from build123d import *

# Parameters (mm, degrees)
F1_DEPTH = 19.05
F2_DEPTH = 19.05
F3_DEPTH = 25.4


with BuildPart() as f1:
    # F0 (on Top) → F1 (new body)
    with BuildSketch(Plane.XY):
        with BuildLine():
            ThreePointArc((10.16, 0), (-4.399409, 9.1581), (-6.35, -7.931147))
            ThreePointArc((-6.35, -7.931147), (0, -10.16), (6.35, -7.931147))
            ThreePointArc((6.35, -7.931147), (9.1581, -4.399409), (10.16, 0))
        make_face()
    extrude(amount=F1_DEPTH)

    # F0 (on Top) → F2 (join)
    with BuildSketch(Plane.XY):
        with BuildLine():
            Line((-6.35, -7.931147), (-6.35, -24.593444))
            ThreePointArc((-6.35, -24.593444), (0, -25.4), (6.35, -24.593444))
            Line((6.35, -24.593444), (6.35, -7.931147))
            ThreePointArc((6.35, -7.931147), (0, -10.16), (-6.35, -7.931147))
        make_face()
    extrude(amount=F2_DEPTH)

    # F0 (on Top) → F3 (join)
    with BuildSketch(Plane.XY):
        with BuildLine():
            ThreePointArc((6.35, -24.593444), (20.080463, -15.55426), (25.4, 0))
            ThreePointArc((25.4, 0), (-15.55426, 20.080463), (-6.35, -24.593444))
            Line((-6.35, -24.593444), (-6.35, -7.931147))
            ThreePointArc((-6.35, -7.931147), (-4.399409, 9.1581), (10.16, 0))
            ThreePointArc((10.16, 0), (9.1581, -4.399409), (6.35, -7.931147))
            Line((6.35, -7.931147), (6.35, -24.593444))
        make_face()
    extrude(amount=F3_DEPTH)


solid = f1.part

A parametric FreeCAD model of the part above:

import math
import FreeCAD as App
import Part
import Sketcher

V = App.Vector
Q = App.Units.Quantity

doc = App.newDocument("Part")
params = doc.addObject("Spreadsheet::Sheet", "Params")
for row, (alias, value) in enumerate([
    ("sketch1_radius", "0.4 in"),
    ("pad1_length", "0.75 in"),
    ("sketch2_radius", "0.3999999 in"),
    ("pad2_length", "0.75 in"),
    ("sketch3_radius", "1 in"),
    ("sketch3_radius2", "0.4 in"),
    ("pad3_length", "1 in"),
], start=1):
    params.set(f"A{row}", alias)
    params.set(f"B{row}", "=" + value)
    params.setAlias(f"B{row}", alias)

body = doc.addObject("PartDesign::Body", "Body")

sketch1 = doc.addObject("Sketcher::SketchObject", "Sketch")
body.addObject(sketch1)
sketch1.AttachmentSupport = (doc.XY_Plane, [""])
sketch1.MapMode = "FlatFace"
sketch1.addGeometry(Part.ArcOfCircle(Part.Circle(V(0, 0, 0), V(0, 0, 1), 10.16), math.radians(0), math.radians(231.31781)), False)
sketch1.addGeometry(Part.ArcOfCircle(Part.Circle(V(0, -0.000002, 0), V(0, 0, 1), 10.159998), math.radians(-128.682195), math.radians(-51.317805)), False)
sketch1.addGeometry(Part.ArcOfCircle(Part.Circle(V(0, 0.000001, 0), V(0, 0, 1), 10.16), math.radians(-51.317812), math.radians(-0.000004)), False)
sketch1.addConstraint(Sketcher.Constraint("Tangent", 0, 2, 1, 1))
sketch1.addConstraint(Sketcher.Constraint("Tangent", 1, 2, 2, 1))
sketch1.addConstraint(Sketcher.Constraint("Tangent", 2, 2, 0, 1))
sketch1.addConstraint(Sketcher.Constraint("Coincident", 0, 3, -1, 1))
sketch1.addConstraint(Sketcher.Constraint("PointOnObject", 2, 2, -1))
sketch1.addConstraint(Sketcher.Constraint("Horizontal", 0, 2, 1, 2))
sketch1.addConstraint(Sketcher.Constraint("Radius", 0, Q("0.4 in")))
sketch1.addConstraint(Sketcher.Constraint("DistanceX", 0, 2, 1, 2, Q("0.5 in")))
sketch1.setExpression("Constraints[6]", "Params.sketch1_radius")
pad1 = doc.addObject("PartDesign::Pad", "Pad")
body.addObject(pad1)
pad1.Profile = sketch1
pad1.setExpression("Length", "Params.pad1_length")

sketch2 = doc.addObject("Sketcher::SketchObject", "Sketch001")
body.addObject(sketch2)
sketch2.AttachmentSupport = (doc.XY_Plane, [""])
sketch2.MapMode = "FlatFace"
sketch2.addGeometry(Part.LineSegment(V(-6.35, -7.931147, 0), V(-6.35, -24.593444, 0)), False)
sketch2.addGeometry(Part.ArcOfCircle(Part.Circle(V(0, -0.000008, 0), V(0, 0, 1), 25.399992), math.radians(-104.477517), math.radians(-75.522483)), False)
sketch2.addGeometry(Part.LineSegment(V(6.35, -24.593444, 0), V(6.35, -7.931147, 0)), False)
sketch2.addGeometry(Part.ArcOfCircle(Part.Circle(V(0, -0.000002, 0), V(0, 0, 1), 10.159998), math.radians(-128.682195), math.radians(-51.317805)), False)
sketch2.addConstraint(Sketcher.Constraint("Coincident", 0, 2, 1, 1))
sketch2.addConstraint(Sketcher.Constraint("Coincident", 1, 2, 2, 1))
sketch2.addConstraint(Sketcher.Constraint("Coincident", 2, 2, 3, 2))
sketch2.addConstraint(Sketcher.Constraint("Coincident", 3, 1, 0, 1))
sketch2.addConstraint(Sketcher.Constraint("Vertical", 0))
sketch2.addConstraint(Sketcher.Constraint("Vertical", 2))
sketch2.addConstraint(Sketcher.Constraint("Coincident", 1, 3, -1, 1))
sketch2.addConstraint(Sketcher.Constraint("Coincident", 3, 3, -1, 1))
sketch2.addConstraint(Sketcher.Constraint("Horizontal", 0, 2, 1, 2))
sketch2.addConstraint(Sketcher.Constraint("Radius", 3, Q("0.3999999 in")))
sketch2.addConstraint(Sketcher.Constraint("DistanceX", 0, 2, 1, 2, Q("0.5 in")))
sketch2.addConstraint(Sketcher.Constraint("Radius", 1, 25.399992))
sketch2.setExpression("Constraints[9]", "Params.sketch2_radius")
pad2 = doc.addObject("PartDesign::Pad", "Pad001")
body.addObject(pad2)
pad2.Profile = sketch2
pad2.setExpression("Length", "Params.pad2_length")

sketch3 = doc.addObject("Sketcher::SketchObject", "Sketch002")
body.addObject(sketch3)
sketch3.AttachmentSupport = (doc.XY_Plane, [""])
sketch3.MapMode = "FlatFace"
sketch3.addGeometry(Part.ArcOfCircle(Part.Circle(V(0, 0, 0), V(0, 0, 1), 25.4), math.radians(-75.522489), math.radians(0)), False)
sketch3.addGeometry(Part.ArcOfCircle(Part.Circle(V(0, 0, 0), V(0, 0, 1), 25.4), math.radians(0), math.radians(255.522488)), False)
sketch3.addGeometry(Part.LineSegment(V(-6.35, -24.593444, 0), V(-6.35, -7.931147, 0)), False)
sketch3.addGeometry(Part.ArcOfCircle(Part.Circle(V(0, 0, 0), V(0, 0, 1), 10.16), math.radians(0), math.radians(231.31781)), False)
sketch3.addGeometry(Part.ArcOfCircle(Part.Circle(V(0, 0.000001, 0), V(0, 0, 1), 10.16), math.radians(-51.317812), math.radians(-0.000004)), False)
sketch3.addGeometry(Part.LineSegment(V(6.35, -7.931147, 0), V(6.35, -24.593444, 0)), False)
sketch3.addConstraint(Sketcher.Constraint("Tangent", 0, 2, 1, 1))
sketch3.addConstraint(Sketcher.Constraint("Coincident", 1, 2, 2, 1))
sketch3.addConstraint(Sketcher.Constraint("Coincident", 2, 2, 3, 2))
sketch3.addConstraint(Sketcher.Constraint("Tangent", 3, 1, 4, 2))
sketch3.addConstraint(Sketcher.Constraint("Coincident", 4, 1, 5, 1))
sketch3.addConstraint(Sketcher.Constraint("Coincident", 5, 2, 0, 1))
sketch3.addConstraint(Sketcher.Constraint("Vertical", 2))
sketch3.addConstraint(Sketcher.Constraint("Vertical", 5))
sketch3.addConstraint(Sketcher.Constraint("Coincident", 0, 3, -1, 1))
sketch3.addConstraint(Sketcher.Constraint("Coincident", 3, 3, -1, 1))
sketch3.addConstraint(Sketcher.Constraint("Equal", 0, 1))
sketch3.addConstraint(Sketcher.Constraint("Equal", 3, 4))
sketch3.addConstraint(Sketcher.Constraint("PointOnObject", 0, 2, -1))
sketch3.addConstraint(Sketcher.Constraint("PointOnObject", 3, 1, -1))
sketch3.addConstraint(Sketcher.Constraint("Horizontal", 2, 2, 4, 1))
sketch3.addConstraint(Sketcher.Constraint("Radius", 0, Q("1 in")))
sketch3.addConstraint(Sketcher.Constraint("Radius", 3, Q("0.4 in")))
sketch3.addConstraint(Sketcher.Constraint("DistanceX", 1, 2, 5, 2, Q("0.5 in")))
sketch3.setExpression("Constraints[15]", "Params.sketch3_radius")
sketch3.setExpression("Constraints[16]", "Params.sketch3_radius2")
pad3 = doc.addObject("PartDesign::Pad", "Pad002")
body.addObject(pad3)
pad3.Profile = sketch3
pad3.setExpression("Length", "Params.pad3_length")

doc.recompute()
